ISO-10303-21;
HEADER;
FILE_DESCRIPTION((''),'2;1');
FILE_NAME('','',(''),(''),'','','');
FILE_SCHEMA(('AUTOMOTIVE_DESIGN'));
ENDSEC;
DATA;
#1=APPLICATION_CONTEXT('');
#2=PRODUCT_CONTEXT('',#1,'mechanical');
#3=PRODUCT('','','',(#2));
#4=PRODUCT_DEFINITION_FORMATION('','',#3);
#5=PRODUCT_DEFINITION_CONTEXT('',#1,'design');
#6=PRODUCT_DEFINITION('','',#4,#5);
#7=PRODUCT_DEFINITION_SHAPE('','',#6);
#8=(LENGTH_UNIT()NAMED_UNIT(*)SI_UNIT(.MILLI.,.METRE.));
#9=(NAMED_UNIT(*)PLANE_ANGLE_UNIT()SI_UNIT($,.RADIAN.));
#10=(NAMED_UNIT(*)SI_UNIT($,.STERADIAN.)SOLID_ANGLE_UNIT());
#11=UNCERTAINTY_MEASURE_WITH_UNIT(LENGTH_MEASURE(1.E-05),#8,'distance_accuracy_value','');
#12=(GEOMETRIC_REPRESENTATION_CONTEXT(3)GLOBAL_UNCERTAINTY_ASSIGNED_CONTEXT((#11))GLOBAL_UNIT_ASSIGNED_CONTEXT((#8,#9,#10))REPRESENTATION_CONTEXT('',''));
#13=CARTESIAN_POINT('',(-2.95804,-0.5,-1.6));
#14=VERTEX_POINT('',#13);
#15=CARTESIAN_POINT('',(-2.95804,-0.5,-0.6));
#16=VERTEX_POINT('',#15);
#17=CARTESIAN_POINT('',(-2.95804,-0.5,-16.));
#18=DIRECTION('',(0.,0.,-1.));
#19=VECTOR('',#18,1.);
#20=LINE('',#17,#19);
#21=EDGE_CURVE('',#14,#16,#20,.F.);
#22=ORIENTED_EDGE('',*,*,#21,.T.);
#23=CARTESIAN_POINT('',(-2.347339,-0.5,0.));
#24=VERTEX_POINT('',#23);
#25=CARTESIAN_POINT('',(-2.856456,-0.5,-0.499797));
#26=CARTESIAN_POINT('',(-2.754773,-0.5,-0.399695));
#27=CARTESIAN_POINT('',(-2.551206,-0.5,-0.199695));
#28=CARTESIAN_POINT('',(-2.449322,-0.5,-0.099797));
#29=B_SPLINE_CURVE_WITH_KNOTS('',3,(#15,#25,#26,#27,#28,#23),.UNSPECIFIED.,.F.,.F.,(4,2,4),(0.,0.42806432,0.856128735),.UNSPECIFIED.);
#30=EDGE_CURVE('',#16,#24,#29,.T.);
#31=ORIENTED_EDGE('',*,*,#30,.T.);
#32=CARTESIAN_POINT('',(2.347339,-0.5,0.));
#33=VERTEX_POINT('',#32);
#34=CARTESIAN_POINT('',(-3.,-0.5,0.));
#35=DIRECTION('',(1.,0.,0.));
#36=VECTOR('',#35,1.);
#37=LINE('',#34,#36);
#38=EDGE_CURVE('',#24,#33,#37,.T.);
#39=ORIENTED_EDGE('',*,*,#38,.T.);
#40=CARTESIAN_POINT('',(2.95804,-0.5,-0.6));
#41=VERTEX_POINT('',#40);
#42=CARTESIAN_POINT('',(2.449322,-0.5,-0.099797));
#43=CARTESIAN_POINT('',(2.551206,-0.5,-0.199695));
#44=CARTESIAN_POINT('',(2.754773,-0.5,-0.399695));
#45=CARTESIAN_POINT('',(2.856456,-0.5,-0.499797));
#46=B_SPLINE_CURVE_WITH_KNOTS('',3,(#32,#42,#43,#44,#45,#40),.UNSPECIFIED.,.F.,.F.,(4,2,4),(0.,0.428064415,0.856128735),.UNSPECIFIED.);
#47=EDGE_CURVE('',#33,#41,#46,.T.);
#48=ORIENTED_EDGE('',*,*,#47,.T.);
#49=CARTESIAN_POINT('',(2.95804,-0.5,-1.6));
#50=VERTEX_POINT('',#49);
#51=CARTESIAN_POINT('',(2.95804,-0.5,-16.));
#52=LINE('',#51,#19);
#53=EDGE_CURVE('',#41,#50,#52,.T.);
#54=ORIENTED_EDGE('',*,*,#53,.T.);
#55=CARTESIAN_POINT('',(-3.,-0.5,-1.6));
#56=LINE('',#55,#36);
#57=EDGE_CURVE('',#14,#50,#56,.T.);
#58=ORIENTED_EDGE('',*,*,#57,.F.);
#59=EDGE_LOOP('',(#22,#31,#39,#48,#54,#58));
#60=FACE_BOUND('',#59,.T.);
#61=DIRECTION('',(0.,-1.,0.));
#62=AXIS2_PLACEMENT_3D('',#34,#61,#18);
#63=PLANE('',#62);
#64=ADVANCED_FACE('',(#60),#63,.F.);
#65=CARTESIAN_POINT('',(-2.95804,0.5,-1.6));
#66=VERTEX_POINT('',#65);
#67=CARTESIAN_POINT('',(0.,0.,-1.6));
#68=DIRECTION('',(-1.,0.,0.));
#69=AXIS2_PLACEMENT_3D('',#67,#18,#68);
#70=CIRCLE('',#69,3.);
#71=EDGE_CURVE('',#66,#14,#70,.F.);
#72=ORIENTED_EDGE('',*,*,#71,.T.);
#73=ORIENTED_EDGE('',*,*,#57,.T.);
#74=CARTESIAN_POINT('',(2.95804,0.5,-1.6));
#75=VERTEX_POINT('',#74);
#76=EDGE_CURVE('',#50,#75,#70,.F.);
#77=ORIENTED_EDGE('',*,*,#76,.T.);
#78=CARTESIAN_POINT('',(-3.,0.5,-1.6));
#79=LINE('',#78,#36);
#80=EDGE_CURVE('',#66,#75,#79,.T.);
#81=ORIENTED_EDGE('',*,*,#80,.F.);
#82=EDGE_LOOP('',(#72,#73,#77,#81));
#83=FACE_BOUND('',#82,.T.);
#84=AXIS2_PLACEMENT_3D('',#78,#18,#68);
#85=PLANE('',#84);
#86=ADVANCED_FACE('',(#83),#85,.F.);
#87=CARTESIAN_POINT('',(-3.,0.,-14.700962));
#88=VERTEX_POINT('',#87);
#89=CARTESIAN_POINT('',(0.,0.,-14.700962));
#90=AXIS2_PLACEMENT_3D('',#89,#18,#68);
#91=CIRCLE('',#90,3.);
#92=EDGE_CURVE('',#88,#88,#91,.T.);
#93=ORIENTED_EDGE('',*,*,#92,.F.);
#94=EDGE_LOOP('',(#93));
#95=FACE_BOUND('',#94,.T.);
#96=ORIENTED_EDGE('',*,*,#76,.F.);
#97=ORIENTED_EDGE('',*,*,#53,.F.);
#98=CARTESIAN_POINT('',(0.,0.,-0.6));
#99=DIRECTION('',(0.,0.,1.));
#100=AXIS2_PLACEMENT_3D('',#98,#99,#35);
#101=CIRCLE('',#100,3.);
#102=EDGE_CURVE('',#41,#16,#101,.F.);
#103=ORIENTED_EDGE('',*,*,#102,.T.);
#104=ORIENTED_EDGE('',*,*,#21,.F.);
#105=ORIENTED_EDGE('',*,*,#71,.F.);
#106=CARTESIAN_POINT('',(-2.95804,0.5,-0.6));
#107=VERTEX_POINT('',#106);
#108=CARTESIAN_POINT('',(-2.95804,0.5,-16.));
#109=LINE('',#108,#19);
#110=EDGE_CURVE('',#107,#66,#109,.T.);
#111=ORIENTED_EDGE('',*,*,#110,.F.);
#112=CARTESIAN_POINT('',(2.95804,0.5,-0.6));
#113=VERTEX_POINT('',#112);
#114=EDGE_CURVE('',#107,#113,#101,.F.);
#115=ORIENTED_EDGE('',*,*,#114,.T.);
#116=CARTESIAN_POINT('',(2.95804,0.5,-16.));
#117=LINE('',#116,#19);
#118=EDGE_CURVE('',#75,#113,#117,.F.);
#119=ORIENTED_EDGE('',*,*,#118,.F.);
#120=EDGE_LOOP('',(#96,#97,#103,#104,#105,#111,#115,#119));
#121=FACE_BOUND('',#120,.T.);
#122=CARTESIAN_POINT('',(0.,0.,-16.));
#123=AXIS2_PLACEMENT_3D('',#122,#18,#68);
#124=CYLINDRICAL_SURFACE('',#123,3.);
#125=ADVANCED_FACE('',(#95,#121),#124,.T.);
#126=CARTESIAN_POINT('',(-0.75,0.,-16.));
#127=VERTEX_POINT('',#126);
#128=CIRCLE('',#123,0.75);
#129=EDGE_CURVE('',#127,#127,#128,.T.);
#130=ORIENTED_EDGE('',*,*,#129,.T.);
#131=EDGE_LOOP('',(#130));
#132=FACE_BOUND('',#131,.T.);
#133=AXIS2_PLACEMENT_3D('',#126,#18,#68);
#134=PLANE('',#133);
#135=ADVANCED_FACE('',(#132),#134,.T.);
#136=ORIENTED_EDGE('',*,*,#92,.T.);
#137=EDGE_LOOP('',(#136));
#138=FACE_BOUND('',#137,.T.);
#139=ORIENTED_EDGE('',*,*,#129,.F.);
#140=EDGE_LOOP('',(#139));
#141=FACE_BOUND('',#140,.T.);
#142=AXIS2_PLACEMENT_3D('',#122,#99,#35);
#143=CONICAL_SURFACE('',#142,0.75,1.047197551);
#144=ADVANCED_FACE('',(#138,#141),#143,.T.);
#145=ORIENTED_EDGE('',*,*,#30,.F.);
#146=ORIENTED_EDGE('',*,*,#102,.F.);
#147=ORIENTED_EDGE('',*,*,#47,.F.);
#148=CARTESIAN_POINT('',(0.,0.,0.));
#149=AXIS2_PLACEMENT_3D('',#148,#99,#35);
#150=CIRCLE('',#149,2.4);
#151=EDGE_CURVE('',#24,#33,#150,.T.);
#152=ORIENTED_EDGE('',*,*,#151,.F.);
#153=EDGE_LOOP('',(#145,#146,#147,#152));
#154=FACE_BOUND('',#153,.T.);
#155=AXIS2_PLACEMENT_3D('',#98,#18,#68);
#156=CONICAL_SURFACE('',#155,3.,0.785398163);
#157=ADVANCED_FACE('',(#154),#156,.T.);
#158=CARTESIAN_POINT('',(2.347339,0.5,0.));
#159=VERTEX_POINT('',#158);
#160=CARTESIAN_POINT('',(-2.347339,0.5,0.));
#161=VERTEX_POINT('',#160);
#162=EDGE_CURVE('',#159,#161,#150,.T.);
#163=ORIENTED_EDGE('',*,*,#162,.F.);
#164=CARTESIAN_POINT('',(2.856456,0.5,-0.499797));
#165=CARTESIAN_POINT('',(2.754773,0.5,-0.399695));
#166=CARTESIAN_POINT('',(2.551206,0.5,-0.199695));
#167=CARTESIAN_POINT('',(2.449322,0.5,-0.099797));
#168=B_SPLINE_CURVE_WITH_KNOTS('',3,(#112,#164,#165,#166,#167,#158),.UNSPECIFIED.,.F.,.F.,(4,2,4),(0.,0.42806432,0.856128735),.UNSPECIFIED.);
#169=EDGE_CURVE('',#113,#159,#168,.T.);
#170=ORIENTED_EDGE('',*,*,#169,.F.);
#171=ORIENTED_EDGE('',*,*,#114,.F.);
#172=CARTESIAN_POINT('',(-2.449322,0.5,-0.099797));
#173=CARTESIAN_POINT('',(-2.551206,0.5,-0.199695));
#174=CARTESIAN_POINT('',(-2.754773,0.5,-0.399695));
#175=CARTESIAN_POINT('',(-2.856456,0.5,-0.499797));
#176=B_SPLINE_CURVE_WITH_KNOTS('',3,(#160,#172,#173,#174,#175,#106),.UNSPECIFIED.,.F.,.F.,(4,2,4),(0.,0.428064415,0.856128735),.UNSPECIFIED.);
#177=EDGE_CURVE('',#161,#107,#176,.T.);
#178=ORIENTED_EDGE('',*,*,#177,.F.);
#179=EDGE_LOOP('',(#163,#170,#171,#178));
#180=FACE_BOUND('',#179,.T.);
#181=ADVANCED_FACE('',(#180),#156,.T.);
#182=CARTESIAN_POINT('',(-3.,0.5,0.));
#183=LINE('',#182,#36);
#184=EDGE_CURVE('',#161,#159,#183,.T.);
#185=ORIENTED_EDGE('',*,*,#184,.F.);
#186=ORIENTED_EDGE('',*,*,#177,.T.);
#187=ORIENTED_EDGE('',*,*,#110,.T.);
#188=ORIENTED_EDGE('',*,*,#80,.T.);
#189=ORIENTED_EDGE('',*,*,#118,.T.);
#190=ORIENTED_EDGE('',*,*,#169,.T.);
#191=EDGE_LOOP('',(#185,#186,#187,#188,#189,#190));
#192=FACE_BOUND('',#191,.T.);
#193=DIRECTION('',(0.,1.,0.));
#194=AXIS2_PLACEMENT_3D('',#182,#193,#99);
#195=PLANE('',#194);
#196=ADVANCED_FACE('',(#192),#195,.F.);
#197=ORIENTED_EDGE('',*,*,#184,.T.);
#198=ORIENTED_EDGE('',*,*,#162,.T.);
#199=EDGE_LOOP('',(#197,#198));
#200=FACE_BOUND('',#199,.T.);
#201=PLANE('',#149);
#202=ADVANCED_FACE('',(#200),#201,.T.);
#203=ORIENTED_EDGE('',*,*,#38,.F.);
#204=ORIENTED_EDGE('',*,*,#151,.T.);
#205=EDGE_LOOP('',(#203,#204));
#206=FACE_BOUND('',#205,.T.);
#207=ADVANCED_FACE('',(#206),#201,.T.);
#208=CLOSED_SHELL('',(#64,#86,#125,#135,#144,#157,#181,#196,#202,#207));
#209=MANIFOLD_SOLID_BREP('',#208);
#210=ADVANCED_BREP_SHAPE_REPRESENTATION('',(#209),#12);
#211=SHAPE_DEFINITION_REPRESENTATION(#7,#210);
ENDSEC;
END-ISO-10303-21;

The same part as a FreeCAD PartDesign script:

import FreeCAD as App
import Part
import Sketcher
Q = App.Units.Quantity


def edges_at(feature, points):
    """Names of the edges that pass closest to the given points."""
    edges = feature.Shape.Edges
    near = lambda p: min(range(len(edges)), key=lambda i: edges[i].distToShape(Part.Vertex(*p))[0])
    return sorted({f"Edge{near(p) + 1}" for p in points})


def add_polygon(sketch, points):
    """Adds a closed chain of lines whose ends are joined by coincident constraints."""
    first, n = sketch.GeometryCount, len(points)
    for a, b in zip(points, points[1:] + points[:1]):
        sketch.addGeometry(Part.LineSegment(App.Vector(*a, 0), App.Vector(*b, 0)), False)
    for i in range(n):
        sketch.addConstraint(Sketcher.Constraint("Coincident", first + i, 2, first + (i + 1) % n, 1))

doc = App.newDocument("Part")
body = doc.addObject("PartDesign::Body", "Body")

# Sketch on XZ plane
sketch1 = body.newObject("Sketcher::SketchObject", "Sketch")
sketch1.AttachmentSupport = (doc.getObject("XZ_Plane"), [""])
sketch1.MapMode = "FlatFace"
add_polygon(sketch1, [(-3, 0), (0, 0), (0, -16), (-0.75, -16), (-3, -14.700962)])  # lines 0-4
sketch1.addConstraint([
    Sketcher.Constraint("Horizontal", 0),
    Sketcher.Constraint("Vertical", 1),
    Sketcher.Constraint("Horizontal", 2),
    Sketcher.Constraint("Vertical", 4),
    Sketcher.Constraint("Coincident", 0, 2, -1, 1),
    Sketcher.Constraint("DistanceX", 0, 1, 0, 2, 3.0),
    Sketcher.Constraint("DistanceY", 1, 2, 1, 1, 16.0),
    Sketcher.Constraint("Angle", 3, Q("150 deg")),
    Sketcher.Constraint("DistanceX", 2, 2, 2, 1, 0.75),
])
revolution = body.newObject("PartDesign::Revolution", "Revolution")
revolution.Profile = sketch1
revolution.ReferenceAxis = (sketch1, ["V_Axis"])
revolution.Angle = 360

# Sketch on YZ plane
sketch2 = body.newObject("Sketcher::SketchObject", "Sketch001")
sketch2.AttachmentSupport = (doc.getObject("YZ_Plane"), [""])
sketch2.MapMode = "FlatFace"
add_polygon(sketch2, [(0.5, 0), (-0.5, 0), (-0.5, -1.6), (0.5, -1.6)])  # lines 0-3
sketch2.addConstraint([
    Sketcher.Constraint("Horizontal", 0),
    Sketcher.Constraint("Vertical", 1),
    Sketcher.Constraint("Horizontal", 2),
    Sketcher.Constraint("Vertical", 3),
    Sketcher.Constraint("Symmetric", 0, 2, 3, 2, -1, 1),
    Sketcher.Constraint("DistanceX", 0, 2, 0, 1, 1.0),
    Sketcher.Constraint("DistanceY", 1, 2, 1, 1, 1.6),
])
pocket1 = body.newObject("PartDesign::Pocket", "Pocket")
pocket1.Profile = sketch2
pocket1.Type = "ThroughAll"
pocket1.Midplane = True
doc.recompute()

chamfer = body.newObject("PartDesign::Chamfer", "Chamfer")
chamfer.Base = (pocket1, edges_at(pocket1, [(0, 3, 0), (0, -3, 0)]))
chamfer.Size = 0.6

doc.recompute()
